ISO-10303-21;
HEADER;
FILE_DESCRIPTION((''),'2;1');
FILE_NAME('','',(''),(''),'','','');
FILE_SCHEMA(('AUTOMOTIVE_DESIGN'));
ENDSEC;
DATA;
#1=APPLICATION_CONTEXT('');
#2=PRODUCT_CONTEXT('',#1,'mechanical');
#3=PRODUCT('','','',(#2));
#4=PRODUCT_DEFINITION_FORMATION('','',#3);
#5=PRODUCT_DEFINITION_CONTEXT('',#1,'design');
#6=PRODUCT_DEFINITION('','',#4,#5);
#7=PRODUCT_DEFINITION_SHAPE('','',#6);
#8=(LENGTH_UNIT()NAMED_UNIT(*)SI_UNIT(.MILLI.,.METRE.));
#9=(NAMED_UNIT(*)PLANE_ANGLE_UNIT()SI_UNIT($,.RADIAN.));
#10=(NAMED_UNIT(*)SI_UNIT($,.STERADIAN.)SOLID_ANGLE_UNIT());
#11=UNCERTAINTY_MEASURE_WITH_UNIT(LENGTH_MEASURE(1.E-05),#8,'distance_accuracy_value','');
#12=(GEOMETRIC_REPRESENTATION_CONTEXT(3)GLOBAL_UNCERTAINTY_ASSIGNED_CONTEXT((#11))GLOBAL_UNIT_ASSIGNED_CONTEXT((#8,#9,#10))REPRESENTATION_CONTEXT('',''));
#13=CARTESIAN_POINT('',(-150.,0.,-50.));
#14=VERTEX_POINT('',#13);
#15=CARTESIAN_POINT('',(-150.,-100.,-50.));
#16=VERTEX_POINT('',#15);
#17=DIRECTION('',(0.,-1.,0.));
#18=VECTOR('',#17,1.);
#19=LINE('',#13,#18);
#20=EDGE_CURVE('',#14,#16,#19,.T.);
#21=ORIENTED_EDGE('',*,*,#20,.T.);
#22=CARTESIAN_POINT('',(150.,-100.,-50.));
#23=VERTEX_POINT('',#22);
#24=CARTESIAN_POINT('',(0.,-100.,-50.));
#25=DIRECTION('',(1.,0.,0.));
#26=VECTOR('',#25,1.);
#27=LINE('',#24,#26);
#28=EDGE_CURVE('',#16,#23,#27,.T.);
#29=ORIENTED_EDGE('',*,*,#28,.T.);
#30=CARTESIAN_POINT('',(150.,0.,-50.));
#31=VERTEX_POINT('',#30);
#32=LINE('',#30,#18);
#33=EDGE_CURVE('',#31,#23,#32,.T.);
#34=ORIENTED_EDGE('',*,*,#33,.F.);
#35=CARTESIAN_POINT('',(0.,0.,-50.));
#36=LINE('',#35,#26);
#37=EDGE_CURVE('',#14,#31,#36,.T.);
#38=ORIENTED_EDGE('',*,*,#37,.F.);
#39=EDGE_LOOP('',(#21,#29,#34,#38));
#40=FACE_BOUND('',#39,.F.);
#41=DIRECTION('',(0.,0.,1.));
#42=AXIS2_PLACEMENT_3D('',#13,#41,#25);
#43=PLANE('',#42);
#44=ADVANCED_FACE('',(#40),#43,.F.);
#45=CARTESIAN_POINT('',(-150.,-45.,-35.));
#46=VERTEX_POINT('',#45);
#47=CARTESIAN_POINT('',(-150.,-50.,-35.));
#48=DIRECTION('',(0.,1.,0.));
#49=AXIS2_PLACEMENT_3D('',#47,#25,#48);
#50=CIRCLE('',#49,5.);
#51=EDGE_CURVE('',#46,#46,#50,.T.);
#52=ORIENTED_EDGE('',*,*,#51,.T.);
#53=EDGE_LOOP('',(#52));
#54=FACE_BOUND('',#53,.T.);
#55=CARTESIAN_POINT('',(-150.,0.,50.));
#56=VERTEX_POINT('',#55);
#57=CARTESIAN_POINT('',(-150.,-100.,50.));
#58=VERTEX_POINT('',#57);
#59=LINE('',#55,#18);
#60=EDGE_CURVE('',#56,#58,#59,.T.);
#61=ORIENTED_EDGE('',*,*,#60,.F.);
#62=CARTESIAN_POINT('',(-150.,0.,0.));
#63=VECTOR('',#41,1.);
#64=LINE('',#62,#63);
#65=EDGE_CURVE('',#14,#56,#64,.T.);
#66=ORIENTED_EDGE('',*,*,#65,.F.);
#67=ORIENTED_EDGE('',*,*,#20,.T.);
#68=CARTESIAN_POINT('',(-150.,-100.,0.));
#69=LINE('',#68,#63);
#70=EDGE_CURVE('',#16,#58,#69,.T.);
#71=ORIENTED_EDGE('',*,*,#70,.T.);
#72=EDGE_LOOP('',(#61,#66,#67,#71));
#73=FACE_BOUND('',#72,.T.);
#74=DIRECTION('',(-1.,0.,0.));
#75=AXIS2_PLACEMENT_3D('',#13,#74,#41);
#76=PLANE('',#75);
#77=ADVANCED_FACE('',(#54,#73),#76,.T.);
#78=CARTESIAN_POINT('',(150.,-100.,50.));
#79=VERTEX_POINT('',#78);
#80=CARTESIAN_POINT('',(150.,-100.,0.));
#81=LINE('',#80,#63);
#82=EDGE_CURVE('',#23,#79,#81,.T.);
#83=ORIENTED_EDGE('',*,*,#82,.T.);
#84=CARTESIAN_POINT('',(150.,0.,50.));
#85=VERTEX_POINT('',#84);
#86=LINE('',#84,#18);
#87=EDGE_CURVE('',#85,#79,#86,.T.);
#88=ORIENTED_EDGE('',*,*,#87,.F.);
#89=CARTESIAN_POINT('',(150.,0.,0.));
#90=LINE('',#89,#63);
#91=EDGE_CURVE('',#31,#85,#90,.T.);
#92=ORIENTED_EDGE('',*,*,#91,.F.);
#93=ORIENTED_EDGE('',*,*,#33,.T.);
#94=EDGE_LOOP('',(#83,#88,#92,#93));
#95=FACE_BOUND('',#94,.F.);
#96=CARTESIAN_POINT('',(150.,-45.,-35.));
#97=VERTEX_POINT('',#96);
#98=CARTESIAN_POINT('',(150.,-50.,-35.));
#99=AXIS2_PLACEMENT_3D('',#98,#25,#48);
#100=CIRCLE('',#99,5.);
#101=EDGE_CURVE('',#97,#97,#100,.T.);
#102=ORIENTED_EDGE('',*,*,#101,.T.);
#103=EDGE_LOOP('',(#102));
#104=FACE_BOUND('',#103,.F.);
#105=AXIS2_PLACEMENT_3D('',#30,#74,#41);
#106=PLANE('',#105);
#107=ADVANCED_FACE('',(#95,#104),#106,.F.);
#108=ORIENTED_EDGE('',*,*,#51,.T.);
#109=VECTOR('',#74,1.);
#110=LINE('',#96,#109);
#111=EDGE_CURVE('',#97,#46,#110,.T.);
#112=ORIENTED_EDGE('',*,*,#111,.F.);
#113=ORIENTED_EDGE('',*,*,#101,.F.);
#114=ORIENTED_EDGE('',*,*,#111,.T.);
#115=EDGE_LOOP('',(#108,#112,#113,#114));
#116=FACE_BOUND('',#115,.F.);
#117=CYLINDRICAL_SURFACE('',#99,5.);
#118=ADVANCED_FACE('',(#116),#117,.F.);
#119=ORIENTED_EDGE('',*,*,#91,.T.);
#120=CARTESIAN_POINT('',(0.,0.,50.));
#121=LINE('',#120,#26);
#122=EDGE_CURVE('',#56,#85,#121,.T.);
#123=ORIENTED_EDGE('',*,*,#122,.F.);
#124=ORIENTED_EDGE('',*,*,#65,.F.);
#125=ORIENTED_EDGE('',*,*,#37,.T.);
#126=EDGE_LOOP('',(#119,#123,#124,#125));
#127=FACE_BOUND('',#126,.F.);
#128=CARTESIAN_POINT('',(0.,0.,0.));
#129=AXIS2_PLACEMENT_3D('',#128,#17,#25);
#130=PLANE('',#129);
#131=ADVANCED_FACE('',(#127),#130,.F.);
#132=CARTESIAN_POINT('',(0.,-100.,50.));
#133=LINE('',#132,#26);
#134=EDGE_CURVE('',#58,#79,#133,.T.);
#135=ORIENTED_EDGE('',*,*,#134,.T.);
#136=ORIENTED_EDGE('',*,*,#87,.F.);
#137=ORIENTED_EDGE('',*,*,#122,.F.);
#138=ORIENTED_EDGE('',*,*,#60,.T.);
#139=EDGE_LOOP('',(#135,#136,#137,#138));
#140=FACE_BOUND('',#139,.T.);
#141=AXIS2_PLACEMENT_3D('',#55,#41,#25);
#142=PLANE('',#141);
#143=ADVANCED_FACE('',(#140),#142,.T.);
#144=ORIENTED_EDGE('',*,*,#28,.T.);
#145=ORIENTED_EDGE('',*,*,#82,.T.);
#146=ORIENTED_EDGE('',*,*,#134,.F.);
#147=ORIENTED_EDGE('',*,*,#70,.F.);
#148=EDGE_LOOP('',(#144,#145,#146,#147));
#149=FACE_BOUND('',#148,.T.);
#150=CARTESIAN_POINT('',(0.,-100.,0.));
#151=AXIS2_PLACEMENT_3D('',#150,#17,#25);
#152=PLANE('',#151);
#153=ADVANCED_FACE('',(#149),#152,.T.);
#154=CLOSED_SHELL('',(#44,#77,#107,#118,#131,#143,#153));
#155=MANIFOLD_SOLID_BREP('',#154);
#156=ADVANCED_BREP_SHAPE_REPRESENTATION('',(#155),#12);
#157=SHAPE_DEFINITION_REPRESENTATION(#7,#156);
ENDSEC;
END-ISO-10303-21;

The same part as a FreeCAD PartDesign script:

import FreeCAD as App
import Part
import Sketcher
from FreeCAD import Vector
Q = App.Units.Quantity


def add_polygon(sketch, points):
    """Adds a closed chain of lines whose ends are joined by coincident constraints."""
    first, n = sketch.GeometryCount, len(points)
    for a, b in zip(points, points[1:] + points[:1]):
        sketch.addGeometry(Part.LineSegment(App.Vector(*a, 0), App.Vector(*b, 0)), False)
    for i in range(n):
        sketch.addConstraint(Sketcher.Constraint("Coincident", first + i, 2, first + (i + 1) % n, 1))

doc = App.newDocument("Part")
body = doc.addObject("PartDesign::Body", "Body")

# Sketch on XZ plane
sketch1 = doc.addObject("Sketcher::SketchObject", "Sketch")
body.addObject(sketch1)
sketch1.AttachmentSupport = (doc.XZ_Plane, [""])
sketch1.MapMode = "FlatFace"
add_polygon(sketch1, [(-150, 50), (-150, -50), (150, -50), (150, 50)])  # lines 0-3
sketch1.addConstraint(Sketcher.Constraint("Vertical", 0))
sketch1.addConstraint(Sketcher.Constraint("Horizontal", 1))
sketch1.addConstraint(Sketcher.Constraint("Vertical", 2))
sketch1.addConstraint(Sketcher.Constraint("Horizontal", 3))
sketch1.addConstraint(Sketcher.Constraint("Symmetric", 0, 2, 2, 2, -1, 1))
sketch1.addConstraint(Sketcher.Constraint("DistanceX", 1, 1, 1, 2, Q("300 mm")))
sketch1.addConstraint(Sketcher.Constraint("DistanceY", 0, 2, 0, 1, Q("100 mm")))
pad1 = doc.addObject("PartDesign::Pad", "Pad")
body.addObject(pad1)
pad1.Profile = sketch1
pad1.Length = 100

# Sketch on YZ plane
sketch2 = doc.addObject("Sketcher::SketchObject", "Sketch001")
body.addObject(sketch2)
sketch2.AttachmentSupport = (doc.YZ_Plane, [""])
sketch2.MapMode = "FlatFace"
sketch2.AttachmentOffset = App.Placement(Vector(0, 0, 150), App.Rotation())
sketch2.addGeometry(Part.Circle(Vector(-50, -35, 0), Vector(0, 0, 1), 5), False)
sketch2.addConstraint(Sketcher.Constraint("Diameter", 0, Q("10 mm")))
sketch2.addConstraint(Sketcher.Constraint("DistanceX", 0, 3, -1, 1, Q("50 mm")))
sketch2.addConstraint(Sketcher.Constraint("DistanceY", 0, 3, -1, 1, Q("35 mm")))
pocket1 = doc.addObject("PartDesign::Pocket", "Pocket")
body.addObject(pocket1)
pocket1.Profile = sketch2
pocket1.Length = 300

doc.recompute()
